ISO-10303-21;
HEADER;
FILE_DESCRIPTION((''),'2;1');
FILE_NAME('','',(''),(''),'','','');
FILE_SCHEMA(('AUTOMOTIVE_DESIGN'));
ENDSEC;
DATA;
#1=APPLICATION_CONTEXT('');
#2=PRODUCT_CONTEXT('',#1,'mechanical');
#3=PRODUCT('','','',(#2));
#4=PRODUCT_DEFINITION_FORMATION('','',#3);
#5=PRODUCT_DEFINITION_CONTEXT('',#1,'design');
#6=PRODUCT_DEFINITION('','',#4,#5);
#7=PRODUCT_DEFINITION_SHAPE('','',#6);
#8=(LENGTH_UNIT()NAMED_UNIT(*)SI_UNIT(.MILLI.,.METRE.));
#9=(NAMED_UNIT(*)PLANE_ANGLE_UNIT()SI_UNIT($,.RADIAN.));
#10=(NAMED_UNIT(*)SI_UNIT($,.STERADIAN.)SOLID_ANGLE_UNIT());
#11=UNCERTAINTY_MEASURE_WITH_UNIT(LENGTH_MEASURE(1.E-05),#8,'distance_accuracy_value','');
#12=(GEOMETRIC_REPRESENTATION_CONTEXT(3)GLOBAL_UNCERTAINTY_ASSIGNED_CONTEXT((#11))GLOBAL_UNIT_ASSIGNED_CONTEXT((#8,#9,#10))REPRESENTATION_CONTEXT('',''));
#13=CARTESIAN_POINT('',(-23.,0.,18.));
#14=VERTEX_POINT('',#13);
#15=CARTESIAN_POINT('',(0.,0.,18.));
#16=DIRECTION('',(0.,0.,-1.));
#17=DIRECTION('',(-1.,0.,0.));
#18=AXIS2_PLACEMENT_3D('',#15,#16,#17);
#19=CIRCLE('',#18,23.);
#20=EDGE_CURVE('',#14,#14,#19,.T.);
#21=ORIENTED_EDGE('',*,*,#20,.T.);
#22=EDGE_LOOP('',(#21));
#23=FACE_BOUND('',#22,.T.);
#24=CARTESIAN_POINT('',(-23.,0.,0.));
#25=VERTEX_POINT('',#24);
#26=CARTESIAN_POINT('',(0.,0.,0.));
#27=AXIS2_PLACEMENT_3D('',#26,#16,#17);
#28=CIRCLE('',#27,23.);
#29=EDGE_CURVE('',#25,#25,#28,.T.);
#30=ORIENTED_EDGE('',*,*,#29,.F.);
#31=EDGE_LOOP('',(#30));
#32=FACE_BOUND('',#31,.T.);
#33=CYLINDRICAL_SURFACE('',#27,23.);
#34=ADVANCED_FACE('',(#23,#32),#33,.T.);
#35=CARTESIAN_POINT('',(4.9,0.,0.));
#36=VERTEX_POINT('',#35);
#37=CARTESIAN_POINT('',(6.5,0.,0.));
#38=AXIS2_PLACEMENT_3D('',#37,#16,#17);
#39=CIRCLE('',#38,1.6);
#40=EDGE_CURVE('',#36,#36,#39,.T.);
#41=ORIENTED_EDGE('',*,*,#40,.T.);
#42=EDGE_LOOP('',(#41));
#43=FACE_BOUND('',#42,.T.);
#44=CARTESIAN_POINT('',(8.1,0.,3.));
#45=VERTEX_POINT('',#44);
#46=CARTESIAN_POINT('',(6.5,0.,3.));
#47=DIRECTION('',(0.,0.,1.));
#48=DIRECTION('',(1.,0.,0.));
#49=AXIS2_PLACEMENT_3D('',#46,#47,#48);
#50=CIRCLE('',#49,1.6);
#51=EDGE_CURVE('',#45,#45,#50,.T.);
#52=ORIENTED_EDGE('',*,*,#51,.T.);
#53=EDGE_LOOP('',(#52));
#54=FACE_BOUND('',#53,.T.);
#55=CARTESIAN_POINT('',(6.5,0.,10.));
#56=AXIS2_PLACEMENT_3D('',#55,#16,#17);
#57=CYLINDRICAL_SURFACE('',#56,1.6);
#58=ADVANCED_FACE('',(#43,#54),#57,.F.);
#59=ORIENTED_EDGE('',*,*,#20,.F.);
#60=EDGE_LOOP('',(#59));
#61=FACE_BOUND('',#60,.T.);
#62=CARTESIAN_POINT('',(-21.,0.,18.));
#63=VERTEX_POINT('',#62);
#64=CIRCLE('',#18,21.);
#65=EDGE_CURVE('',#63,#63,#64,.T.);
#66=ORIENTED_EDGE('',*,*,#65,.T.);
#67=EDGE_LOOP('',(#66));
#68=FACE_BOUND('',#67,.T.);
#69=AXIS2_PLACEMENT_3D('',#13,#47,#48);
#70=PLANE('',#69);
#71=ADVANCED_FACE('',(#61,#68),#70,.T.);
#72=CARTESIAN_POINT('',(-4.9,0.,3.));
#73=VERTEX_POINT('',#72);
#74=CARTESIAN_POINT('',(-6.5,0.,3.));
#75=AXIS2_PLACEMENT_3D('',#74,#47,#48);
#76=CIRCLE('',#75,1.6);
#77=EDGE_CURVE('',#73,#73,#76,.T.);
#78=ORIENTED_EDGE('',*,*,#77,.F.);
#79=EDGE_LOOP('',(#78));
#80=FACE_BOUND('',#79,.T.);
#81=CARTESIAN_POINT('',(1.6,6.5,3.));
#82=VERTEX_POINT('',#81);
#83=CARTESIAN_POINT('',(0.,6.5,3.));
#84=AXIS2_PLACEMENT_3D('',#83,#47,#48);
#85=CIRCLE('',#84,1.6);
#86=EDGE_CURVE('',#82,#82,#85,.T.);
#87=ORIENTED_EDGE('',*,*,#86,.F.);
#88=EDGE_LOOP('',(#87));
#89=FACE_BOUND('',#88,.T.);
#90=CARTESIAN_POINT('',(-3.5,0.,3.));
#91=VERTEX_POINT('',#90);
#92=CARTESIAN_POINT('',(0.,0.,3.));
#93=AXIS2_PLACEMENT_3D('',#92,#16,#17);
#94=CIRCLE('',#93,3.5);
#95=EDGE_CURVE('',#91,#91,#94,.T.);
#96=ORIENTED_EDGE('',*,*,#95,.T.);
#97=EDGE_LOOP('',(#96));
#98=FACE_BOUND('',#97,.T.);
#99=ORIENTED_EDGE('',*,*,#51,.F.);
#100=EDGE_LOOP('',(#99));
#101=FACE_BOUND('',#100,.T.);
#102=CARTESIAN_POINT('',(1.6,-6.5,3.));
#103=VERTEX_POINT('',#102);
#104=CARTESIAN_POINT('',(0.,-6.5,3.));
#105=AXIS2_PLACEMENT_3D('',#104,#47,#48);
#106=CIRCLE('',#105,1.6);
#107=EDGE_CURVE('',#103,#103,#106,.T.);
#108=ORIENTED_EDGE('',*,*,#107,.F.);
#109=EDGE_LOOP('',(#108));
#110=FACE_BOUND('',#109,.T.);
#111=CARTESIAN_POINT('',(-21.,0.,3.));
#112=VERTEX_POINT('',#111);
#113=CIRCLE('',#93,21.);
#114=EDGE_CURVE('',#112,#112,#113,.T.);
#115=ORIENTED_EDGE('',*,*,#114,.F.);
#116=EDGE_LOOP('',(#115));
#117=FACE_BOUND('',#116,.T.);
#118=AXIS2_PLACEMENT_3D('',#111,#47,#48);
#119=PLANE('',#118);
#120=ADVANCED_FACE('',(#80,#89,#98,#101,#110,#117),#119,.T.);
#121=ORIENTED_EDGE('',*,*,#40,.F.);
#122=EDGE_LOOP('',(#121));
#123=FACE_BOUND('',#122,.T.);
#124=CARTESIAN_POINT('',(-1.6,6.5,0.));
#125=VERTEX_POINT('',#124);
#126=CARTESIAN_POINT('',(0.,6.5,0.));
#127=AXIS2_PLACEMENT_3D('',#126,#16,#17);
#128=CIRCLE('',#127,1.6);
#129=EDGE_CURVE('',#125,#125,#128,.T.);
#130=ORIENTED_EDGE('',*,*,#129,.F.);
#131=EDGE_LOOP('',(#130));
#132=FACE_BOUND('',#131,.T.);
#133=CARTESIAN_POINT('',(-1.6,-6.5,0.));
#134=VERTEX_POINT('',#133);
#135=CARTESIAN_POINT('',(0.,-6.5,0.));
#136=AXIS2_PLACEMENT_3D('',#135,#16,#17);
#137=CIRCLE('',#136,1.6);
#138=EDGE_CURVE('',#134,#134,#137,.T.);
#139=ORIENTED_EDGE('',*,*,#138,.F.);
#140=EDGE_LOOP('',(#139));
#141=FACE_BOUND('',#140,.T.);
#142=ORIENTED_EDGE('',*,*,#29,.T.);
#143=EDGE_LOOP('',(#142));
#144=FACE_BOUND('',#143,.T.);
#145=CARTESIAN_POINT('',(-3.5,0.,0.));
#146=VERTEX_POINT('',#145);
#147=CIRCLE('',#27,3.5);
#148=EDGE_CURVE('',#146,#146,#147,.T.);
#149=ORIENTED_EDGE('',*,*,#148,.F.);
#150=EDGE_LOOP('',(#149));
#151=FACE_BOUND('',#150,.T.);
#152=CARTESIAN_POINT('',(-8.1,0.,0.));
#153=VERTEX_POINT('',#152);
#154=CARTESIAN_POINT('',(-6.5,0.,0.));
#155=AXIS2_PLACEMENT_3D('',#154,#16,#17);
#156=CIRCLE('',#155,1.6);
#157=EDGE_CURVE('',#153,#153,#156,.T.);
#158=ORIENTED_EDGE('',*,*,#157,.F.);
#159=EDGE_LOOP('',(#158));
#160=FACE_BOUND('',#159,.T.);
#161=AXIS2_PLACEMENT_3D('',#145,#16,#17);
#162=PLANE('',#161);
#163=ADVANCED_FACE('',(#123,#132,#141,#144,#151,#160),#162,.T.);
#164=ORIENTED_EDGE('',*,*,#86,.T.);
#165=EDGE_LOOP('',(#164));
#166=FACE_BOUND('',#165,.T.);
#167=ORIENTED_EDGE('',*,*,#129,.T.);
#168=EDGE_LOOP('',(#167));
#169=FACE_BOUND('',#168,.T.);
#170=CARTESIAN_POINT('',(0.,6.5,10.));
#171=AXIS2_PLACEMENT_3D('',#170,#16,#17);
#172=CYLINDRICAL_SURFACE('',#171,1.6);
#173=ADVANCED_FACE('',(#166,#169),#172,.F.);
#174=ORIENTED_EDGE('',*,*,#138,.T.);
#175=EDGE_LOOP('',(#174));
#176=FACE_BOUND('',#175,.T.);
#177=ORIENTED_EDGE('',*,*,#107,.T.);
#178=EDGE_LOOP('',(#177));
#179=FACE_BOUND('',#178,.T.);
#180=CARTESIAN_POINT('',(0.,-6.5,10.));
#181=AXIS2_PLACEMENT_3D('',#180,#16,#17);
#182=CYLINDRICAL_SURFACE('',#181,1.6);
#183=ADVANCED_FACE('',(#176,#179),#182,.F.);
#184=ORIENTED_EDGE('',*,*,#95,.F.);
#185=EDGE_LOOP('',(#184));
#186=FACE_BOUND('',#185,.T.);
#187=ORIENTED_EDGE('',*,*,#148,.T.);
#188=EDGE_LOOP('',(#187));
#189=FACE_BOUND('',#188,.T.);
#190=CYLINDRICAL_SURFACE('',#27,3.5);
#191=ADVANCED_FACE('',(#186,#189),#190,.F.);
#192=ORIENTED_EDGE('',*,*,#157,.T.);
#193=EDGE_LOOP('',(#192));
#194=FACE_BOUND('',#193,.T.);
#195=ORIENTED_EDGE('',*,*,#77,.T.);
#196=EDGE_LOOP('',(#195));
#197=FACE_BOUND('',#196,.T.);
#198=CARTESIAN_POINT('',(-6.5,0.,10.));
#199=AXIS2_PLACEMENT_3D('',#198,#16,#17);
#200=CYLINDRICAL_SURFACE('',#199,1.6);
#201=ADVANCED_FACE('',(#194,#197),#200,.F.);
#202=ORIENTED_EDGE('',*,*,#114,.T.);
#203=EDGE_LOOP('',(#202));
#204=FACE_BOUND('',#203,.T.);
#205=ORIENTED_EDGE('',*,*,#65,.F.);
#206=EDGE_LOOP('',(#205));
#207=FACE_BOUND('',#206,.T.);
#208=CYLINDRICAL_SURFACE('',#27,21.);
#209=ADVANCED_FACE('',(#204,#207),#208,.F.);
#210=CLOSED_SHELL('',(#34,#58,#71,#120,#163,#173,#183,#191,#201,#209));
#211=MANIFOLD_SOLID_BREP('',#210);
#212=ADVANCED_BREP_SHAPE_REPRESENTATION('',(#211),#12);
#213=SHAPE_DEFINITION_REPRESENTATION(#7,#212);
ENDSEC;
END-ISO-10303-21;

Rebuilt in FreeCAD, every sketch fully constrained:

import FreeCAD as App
import Part
import Sketcher

doc = App.newDocument("Part")
body = doc.addObject("PartDesign::Body", "Body")

# Sketch on XZ plane
sketch1 = body.newObject("Sketcher::SketchObject", "Sketch")
sketch1.AttachmentSupport = (doc.getObject("XZ_Plane"), [""])
sketch1.MapMode = "FlatFace"
sketch1.addGeometry(Part.LineSegment(App.Vector(-3.5, 0, 0), App.Vector(-23, 0, 0)), False)
sketch1.addGeometry(Part.LineSegment(App.Vector(-23, 0, 0), App.Vector(-23, 18, 0)), False)
sketch1.addGeometry(Part.LineSegment(App.Vector(-23, 18, 0), App.Vector(-21, 18, 0)), False)
sketch1.addGeometry(Part.LineSegment(App.Vector(-21, 18, 0), App.Vector(-21, 3, 0)), False)
sketch1.addGeometry(Part.LineSegment(App.Vector(-21, 3, 0), App.Vector(-3.5, 3, 0)), False)
sketch1.addGeometry(Part.LineSegment(App.Vector(-3.5, 3, 0), App.Vector(-3.5, 0, 0)), False)
sketch1.addConstraint(Sketcher.Constraint("Coincident", 0, 2, 1, 1))
sketch1.addConstraint(Sketcher.Constraint("Coincident", 1, 2, 2, 1))
sketch1.addConstraint(Sketcher.Constraint("Coincident", 2, 2, 3, 1))
sketch1.addConstraint(Sketcher.Constraint("Coincident", 3, 2, 4, 1))
sketch1.addConstraint(Sketcher.Constraint("Coincident", 4, 2, 5, 1))
sketch1.addConstraint(Sketcher.Constraint("Coincident", 5, 2, 0, 1))
sketch1.addConstraint(Sketcher.Constraint("Horizontal", 0))
sketch1.addConstraint(Sketcher.Constraint("Vertical", 1))
sketch1.addConstraint(Sketcher.Constraint("Horizontal", 2))
sketch1.addConstraint(Sketcher.Constraint("Vertical", 3))
sketch1.addConstraint(Sketcher.Constraint("Horizontal", 4))
sketch1.addConstraint(Sketcher.Constraint("Vertical", 5))
sketch1.addConstraint(Sketcher.Constraint("PointOnObject", 0, 2, -1))
sketch1.addConstraint(Sketcher.Constraint("DistanceX", 2, 1, 2, 2, 2.0))
sketch1.addConstraint(Sketcher.Constraint("DistanceY", 1, 1, 1, 2, 18.0))
sketch1.addConstraint(Sketcher.Constraint("DistanceY", 3, 2, 3, 1, 15.0))
sketch1.addConstraint(Sketcher.Constraint("DistanceX", 0, 2, 0, 1, 19.5))
sketch1.addConstraint(Sketcher.Constraint("DistanceX", 0, 2, -1, 1, 23.0))
revolution = body.newObject("PartDesign::Revolution", "Revolution")
revolution.Profile = sketch1
revolution.ReferenceAxis = (sketch1, ["V_Axis"])
revolution.Angle = 360

# Sketch on XY plane
sketch2 = body.newObject("Sketcher::SketchObject", "Sketch001")
sketch2.AttachmentSupport = (doc.getObject("XY_Plane"), [""])
sketch2.MapMode = "FlatFace"
sketch2.addGeometry(Part.Circle(App.Vector(-6.5, 0, 0), App.Vector(0, 0, 1), 1.6), False)
sketch2.addGeometry(Part.Circle(App.Vector(0, -6.5, 0), App.Vector(0, 0, 1), 1.6), False)
sketch2.addGeometry(Part.Circle(App.Vector(6.5, 0, 0), App.Vector(0, 0, 1), 1.6), False)
sketch2.addGeometry(Part.Circle(App.Vector(0, 6.5, 0), App.Vector(0, 0, 1), 1.6), False)
sketch2.addConstraint(Sketcher.Constraint("Equal", 0, 1))
sketch2.addConstraint(Sketcher.Constraint("Equal", 1, 2))
sketch2.addConstraint(Sketcher.Constraint("Equal", 2, 3))
sketch2.addConstraint(Sketcher.Constraint("Symmetric", 0, 3, 2, 3, -1, 1))
sketch2.addConstraint(Sketcher.Constraint("Symmetric", 1, 3, 3, 3, -1, 1))
sketch2.addConstraint(Sketcher.Constraint("PointOnObject", 0, 3, -1))
sketch2.addConstraint(Sketcher.Constraint("PointOnObject", 1, 3, -2))
sketch2.addConstraint(Sketcher.Constraint("Diameter", 0, 3.2))
sketch2.addConstraint(Sketcher.Constraint("DistanceX", 0, 3, 2, 3, 13.0))
sketch2.addConstraint(Sketcher.Constraint("DistanceY", 1, 3, 3, 3, 13.0))
pocket1 = body.newObject("PartDesign::Pocket", "Pocket")
pocket1.Profile = sketch2
pocket1.Length = 10
pocket1.Reversed = True

doc.recompute()
